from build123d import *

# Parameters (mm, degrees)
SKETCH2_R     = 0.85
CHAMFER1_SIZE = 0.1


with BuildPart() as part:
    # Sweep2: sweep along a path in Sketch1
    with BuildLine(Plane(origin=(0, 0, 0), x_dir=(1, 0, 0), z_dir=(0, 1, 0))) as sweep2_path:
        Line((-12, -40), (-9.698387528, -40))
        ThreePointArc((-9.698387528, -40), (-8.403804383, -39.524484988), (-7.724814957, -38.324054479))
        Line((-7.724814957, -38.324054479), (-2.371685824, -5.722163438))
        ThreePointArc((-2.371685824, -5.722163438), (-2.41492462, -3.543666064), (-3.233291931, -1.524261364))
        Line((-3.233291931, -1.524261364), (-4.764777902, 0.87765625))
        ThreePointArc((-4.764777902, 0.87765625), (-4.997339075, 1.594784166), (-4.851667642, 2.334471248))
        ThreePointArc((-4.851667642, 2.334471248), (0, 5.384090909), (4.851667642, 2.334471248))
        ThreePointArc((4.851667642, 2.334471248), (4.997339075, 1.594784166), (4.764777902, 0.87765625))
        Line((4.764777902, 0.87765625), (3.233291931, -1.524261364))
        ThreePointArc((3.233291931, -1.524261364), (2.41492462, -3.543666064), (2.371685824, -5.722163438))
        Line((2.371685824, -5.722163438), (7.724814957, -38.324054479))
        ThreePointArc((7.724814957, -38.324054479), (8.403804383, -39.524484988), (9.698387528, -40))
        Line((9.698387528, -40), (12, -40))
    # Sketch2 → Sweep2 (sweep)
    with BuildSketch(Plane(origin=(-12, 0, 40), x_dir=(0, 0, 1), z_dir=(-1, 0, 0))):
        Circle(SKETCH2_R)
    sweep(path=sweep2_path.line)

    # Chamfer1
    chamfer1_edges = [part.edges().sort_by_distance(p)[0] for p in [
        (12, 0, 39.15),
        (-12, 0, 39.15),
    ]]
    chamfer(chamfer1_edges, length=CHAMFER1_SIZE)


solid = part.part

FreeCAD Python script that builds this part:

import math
import FreeCAD as App
import Part
import Sketcher
Q = App.Units.Quantity


def edges_at(feature, points):
    """Names of the edges that pass closest to the given points."""
    edges = feature.Shape.Edges
    near = lambda p: min(range(len(edges)), key=lambda i: edges[i].distToShape(Part.Vertex(*p))[0])
    return sorted({f"Edge{near(p) + 1}" for p in points})

doc = App.newDocument("Part")
body = doc.addObject("PartDesign::Body", "Body")

sketch1 = body.newObject("Sketcher::SketchObject", "Sketch")
sketch1.AttachmentSupport = (doc.getObject("YZ_Plane"), [""])
sketch1.MapMode = "FlatFace"
sketch1.AttachmentOffset = App.Placement(App.Vector(0, 0, -12), App.Rotation())
sketch1.addGeometry(Part.Circle(App.Vector(0, 40, 0), App.Vector(0, 0, 1), 0.8), False)
sketch1.addConstraint(Sketcher.Constraint("PointOnObject", 0, 3, -2))
sketch1.addConstraint(Sketcher.Constraint("Diameter", 0, Q("1.7 mm")))
sketch1.addConstraint(Sketcher.Constraint("DistanceY", -1, 1, 0, 3, Q("40 mm")))

sketch2 = body.newObject("Sketcher::SketchObject", "Sketch001")
sketch2.AttachmentSupport = (doc.getObject("XZ_Plane"), [""])
sketch2.MapMode = "FlatFace"
sketch2.addGeometry(Part.LineSegment(App.Vector(-12, 40, 0), App.Vector(-9.7, 40, 0)), False)
sketch2.addGeometry(Part.ArcOfCircle(Part.Circle(App.Vector(-9.7, 38, 0), App.Vector(0, 0, 1), 2), math.radians(9), math.radians(90)), False)
sketch2.addGeometry(Part.LineSegment(App.Vector(-7.7, 38.3, 0), App.Vector(-2.4, 5.7, 0)), False)
sketch2.addGeometry(Part.ArcOfCircle(Part.Circle(App.Vector(-8.3, 4.8, 0), App.Vector(0, 0, 1), 6), math.radians(-33), math.radians(9)), False)
sketch2.addGeometry(Part.LineSegment(App.Vector(-3.2, 1.5, 0), App.Vector(-4.8, -0.9, 0)), False)
sketch2.addGeometry(Part.ArcOfCircle(Part.Circle(App.Vector(-3.5, -1.7, 0), App.Vector(0, 0, 1), 1.5), math.radians(147), math.radians(206)), False)
sketch2.addGeometry(Part.ArcOfCircle(Part.Circle(App.Vector(0, 0, 0), App.Vector(0, 0, 1), 5.4), math.radians(-154), math.radians(-26)), False)
sketch2.addGeometry(Part.ArcOfCircle(Part.Circle(App.Vector(3.5, -1.7, 0), App.Vector(0, 0, 1), 1.5), math.radians(-26), math.radians(33)), False)
sketch2.addGeometry(Part.LineSegment(App.Vector(4.8, -0.9, 0), App.Vector(3.2, 1.5, 0)), False)
sketch2.addGeometry(Part.ArcOfCircle(Part.Circle(App.Vector(8.3, 4.8, 0), App.Vector(0, 0, 1), 6), math.radians(171), math.radians(213)), False)
sketch2.addGeometry(Part.LineSegment(App.Vector(2.4, 5.7, 0), App.Vector(7.7, 38.3, 0)), False)
sketch2.addGeometry(Part.ArcOfCircle(Part.Circle(App.Vector(9.7, 38, 0), App.Vector(0, 0, 1), 2), math.radians(90), math.radians(171)), False)
sketch2.addGeometry(Part.LineSegment(App.Vector(9.7, 40, 0), App.Vector(12, 40, 0)), False)
sketch2.addConstraint(Sketcher.Constraint("Tangent", 0, 2, 1, 2))
sketch2.addConstraint(Sketcher.Constraint("Tangent", 1, 1, 2, 1))
sketch2.addConstraint(Sketcher.Constraint("Tangent", 2, 2, 3, 2))
sketch2.addConstraint(Sketcher.Constraint("Tangent", 3, 1, 4, 1))
sketch2.addConstraint(Sketcher.Constraint("Tangent", 4, 2, 5, 1))
sketch2.addConstraint(Sketcher.Constraint("Tangent", 5, 2, 6, 1))
sketch2.addConstraint(Sketcher.Constraint("Tangent", 6, 2, 7, 1))
sketch2.addConstraint(Sketcher.Constraint("Tangent", 7, 2, 8, 1))
sketch2.addConstraint(Sketcher.Constraint("Tangent", 8, 2, 9, 2))
sketch2.addConstraint(Sketcher.Constraint("Tangent", 9, 1, 10, 1))
sketch2.addConstraint(Sketcher.Constraint("Tangent", 10, 2, 11, 2))
sketch2.addConstraint(Sketcher.Constraint("Tangent", 11, 1, 12, 1))
sketch2.addConstraint(Sketcher.Constraint("Horizontal", 0))
sketch2.addConstraint(Sketcher.Constraint("Horizontal", 12))
sketch2.addConstraint(Sketcher.Constraint("Coincident", 6, 3, -1, 1))
sketch2.addConstraint(Sketcher.Constraint("Equal", 5, 7))
sketch2.addConstraint(Sketcher.Constraint("Equal", 3, 9))
sketch2.addConstraint(Sketcher.Constraint("Equal", 1, 11))
sketch2.addConstraint(Sketcher.Constraint("Symmetric", 3, 3, 9, 3, -2))
sketch2.addConstraint(Sketcher.Constraint("Symmetric", 1, 3, 11, 3, -2))
sketch2.addConstraint(Sketcher.Constraint("Horizontal", 5, 3, 7, 3))
sketch2.addConstraint(Sketcher.Constraint("Equal", 0, 12))
sketch2.addConstraint(Sketcher.Constraint("Radius", 1, Q("2 mm")))
sketch2.addConstraint(Sketcher.Constraint("Radius", 3, Q("6 mm")))
sketch2.addConstraint(Sketcher.Constraint("Radius", 5, Q("1.5 mm")))
sketch2.addConstraint(Sketcher.Constraint("DistanceY", -1, 1, 1, 3, Q("38 mm")))
sketch2.addConstraint(Sketcher.Constraint("DistanceX", 0, 1, -1, 1, Q("12 mm")))
sketch2.addConstraint(Sketcher.Constraint("DistanceX", 5, 3, 7, 3, Q("7 mm")))
sketch2.addConstraint(Sketcher.Constraint("DistanceY", -1, 1, 3, 3, Q("4.75 mm")))
sketch2.addConstraint(Sketcher.Constraint("Radius", 6, Q("5.384091 mm")))
sketch2.addConstraint(Sketcher.Constraint("Distance", 2, Q("33.038452 mm")))
sketch2.addConstraint(Sketcher.Constraint("DistanceX", 0, 1, 0, 2, Q("2.301612 mm")))
doc.recompute()

additivepipe = body.newObject("PartDesign::AdditivePipe", "AdditivePipe")
additivepipe.Profile = sketch1
additivepipe.Spine = (sketch2, ["Edge1", "Edge2", "Edge3", "Edge4", "Edge5", "Edge6", "Edge7", "Edge8", "Edge9", "Edge10", "Edge11", "Edge12", "Edge13"])
doc.recompute()

chamfer = body.newObject("PartDesign::Chamfer", "Chamfer")
chamfer.Base = (additivepipe, edges_at(additivepipe, [(12, 0, 39.15), (-12, 0, 39.15)]))
chamfer.Size = 0.1

doc.recompute()
